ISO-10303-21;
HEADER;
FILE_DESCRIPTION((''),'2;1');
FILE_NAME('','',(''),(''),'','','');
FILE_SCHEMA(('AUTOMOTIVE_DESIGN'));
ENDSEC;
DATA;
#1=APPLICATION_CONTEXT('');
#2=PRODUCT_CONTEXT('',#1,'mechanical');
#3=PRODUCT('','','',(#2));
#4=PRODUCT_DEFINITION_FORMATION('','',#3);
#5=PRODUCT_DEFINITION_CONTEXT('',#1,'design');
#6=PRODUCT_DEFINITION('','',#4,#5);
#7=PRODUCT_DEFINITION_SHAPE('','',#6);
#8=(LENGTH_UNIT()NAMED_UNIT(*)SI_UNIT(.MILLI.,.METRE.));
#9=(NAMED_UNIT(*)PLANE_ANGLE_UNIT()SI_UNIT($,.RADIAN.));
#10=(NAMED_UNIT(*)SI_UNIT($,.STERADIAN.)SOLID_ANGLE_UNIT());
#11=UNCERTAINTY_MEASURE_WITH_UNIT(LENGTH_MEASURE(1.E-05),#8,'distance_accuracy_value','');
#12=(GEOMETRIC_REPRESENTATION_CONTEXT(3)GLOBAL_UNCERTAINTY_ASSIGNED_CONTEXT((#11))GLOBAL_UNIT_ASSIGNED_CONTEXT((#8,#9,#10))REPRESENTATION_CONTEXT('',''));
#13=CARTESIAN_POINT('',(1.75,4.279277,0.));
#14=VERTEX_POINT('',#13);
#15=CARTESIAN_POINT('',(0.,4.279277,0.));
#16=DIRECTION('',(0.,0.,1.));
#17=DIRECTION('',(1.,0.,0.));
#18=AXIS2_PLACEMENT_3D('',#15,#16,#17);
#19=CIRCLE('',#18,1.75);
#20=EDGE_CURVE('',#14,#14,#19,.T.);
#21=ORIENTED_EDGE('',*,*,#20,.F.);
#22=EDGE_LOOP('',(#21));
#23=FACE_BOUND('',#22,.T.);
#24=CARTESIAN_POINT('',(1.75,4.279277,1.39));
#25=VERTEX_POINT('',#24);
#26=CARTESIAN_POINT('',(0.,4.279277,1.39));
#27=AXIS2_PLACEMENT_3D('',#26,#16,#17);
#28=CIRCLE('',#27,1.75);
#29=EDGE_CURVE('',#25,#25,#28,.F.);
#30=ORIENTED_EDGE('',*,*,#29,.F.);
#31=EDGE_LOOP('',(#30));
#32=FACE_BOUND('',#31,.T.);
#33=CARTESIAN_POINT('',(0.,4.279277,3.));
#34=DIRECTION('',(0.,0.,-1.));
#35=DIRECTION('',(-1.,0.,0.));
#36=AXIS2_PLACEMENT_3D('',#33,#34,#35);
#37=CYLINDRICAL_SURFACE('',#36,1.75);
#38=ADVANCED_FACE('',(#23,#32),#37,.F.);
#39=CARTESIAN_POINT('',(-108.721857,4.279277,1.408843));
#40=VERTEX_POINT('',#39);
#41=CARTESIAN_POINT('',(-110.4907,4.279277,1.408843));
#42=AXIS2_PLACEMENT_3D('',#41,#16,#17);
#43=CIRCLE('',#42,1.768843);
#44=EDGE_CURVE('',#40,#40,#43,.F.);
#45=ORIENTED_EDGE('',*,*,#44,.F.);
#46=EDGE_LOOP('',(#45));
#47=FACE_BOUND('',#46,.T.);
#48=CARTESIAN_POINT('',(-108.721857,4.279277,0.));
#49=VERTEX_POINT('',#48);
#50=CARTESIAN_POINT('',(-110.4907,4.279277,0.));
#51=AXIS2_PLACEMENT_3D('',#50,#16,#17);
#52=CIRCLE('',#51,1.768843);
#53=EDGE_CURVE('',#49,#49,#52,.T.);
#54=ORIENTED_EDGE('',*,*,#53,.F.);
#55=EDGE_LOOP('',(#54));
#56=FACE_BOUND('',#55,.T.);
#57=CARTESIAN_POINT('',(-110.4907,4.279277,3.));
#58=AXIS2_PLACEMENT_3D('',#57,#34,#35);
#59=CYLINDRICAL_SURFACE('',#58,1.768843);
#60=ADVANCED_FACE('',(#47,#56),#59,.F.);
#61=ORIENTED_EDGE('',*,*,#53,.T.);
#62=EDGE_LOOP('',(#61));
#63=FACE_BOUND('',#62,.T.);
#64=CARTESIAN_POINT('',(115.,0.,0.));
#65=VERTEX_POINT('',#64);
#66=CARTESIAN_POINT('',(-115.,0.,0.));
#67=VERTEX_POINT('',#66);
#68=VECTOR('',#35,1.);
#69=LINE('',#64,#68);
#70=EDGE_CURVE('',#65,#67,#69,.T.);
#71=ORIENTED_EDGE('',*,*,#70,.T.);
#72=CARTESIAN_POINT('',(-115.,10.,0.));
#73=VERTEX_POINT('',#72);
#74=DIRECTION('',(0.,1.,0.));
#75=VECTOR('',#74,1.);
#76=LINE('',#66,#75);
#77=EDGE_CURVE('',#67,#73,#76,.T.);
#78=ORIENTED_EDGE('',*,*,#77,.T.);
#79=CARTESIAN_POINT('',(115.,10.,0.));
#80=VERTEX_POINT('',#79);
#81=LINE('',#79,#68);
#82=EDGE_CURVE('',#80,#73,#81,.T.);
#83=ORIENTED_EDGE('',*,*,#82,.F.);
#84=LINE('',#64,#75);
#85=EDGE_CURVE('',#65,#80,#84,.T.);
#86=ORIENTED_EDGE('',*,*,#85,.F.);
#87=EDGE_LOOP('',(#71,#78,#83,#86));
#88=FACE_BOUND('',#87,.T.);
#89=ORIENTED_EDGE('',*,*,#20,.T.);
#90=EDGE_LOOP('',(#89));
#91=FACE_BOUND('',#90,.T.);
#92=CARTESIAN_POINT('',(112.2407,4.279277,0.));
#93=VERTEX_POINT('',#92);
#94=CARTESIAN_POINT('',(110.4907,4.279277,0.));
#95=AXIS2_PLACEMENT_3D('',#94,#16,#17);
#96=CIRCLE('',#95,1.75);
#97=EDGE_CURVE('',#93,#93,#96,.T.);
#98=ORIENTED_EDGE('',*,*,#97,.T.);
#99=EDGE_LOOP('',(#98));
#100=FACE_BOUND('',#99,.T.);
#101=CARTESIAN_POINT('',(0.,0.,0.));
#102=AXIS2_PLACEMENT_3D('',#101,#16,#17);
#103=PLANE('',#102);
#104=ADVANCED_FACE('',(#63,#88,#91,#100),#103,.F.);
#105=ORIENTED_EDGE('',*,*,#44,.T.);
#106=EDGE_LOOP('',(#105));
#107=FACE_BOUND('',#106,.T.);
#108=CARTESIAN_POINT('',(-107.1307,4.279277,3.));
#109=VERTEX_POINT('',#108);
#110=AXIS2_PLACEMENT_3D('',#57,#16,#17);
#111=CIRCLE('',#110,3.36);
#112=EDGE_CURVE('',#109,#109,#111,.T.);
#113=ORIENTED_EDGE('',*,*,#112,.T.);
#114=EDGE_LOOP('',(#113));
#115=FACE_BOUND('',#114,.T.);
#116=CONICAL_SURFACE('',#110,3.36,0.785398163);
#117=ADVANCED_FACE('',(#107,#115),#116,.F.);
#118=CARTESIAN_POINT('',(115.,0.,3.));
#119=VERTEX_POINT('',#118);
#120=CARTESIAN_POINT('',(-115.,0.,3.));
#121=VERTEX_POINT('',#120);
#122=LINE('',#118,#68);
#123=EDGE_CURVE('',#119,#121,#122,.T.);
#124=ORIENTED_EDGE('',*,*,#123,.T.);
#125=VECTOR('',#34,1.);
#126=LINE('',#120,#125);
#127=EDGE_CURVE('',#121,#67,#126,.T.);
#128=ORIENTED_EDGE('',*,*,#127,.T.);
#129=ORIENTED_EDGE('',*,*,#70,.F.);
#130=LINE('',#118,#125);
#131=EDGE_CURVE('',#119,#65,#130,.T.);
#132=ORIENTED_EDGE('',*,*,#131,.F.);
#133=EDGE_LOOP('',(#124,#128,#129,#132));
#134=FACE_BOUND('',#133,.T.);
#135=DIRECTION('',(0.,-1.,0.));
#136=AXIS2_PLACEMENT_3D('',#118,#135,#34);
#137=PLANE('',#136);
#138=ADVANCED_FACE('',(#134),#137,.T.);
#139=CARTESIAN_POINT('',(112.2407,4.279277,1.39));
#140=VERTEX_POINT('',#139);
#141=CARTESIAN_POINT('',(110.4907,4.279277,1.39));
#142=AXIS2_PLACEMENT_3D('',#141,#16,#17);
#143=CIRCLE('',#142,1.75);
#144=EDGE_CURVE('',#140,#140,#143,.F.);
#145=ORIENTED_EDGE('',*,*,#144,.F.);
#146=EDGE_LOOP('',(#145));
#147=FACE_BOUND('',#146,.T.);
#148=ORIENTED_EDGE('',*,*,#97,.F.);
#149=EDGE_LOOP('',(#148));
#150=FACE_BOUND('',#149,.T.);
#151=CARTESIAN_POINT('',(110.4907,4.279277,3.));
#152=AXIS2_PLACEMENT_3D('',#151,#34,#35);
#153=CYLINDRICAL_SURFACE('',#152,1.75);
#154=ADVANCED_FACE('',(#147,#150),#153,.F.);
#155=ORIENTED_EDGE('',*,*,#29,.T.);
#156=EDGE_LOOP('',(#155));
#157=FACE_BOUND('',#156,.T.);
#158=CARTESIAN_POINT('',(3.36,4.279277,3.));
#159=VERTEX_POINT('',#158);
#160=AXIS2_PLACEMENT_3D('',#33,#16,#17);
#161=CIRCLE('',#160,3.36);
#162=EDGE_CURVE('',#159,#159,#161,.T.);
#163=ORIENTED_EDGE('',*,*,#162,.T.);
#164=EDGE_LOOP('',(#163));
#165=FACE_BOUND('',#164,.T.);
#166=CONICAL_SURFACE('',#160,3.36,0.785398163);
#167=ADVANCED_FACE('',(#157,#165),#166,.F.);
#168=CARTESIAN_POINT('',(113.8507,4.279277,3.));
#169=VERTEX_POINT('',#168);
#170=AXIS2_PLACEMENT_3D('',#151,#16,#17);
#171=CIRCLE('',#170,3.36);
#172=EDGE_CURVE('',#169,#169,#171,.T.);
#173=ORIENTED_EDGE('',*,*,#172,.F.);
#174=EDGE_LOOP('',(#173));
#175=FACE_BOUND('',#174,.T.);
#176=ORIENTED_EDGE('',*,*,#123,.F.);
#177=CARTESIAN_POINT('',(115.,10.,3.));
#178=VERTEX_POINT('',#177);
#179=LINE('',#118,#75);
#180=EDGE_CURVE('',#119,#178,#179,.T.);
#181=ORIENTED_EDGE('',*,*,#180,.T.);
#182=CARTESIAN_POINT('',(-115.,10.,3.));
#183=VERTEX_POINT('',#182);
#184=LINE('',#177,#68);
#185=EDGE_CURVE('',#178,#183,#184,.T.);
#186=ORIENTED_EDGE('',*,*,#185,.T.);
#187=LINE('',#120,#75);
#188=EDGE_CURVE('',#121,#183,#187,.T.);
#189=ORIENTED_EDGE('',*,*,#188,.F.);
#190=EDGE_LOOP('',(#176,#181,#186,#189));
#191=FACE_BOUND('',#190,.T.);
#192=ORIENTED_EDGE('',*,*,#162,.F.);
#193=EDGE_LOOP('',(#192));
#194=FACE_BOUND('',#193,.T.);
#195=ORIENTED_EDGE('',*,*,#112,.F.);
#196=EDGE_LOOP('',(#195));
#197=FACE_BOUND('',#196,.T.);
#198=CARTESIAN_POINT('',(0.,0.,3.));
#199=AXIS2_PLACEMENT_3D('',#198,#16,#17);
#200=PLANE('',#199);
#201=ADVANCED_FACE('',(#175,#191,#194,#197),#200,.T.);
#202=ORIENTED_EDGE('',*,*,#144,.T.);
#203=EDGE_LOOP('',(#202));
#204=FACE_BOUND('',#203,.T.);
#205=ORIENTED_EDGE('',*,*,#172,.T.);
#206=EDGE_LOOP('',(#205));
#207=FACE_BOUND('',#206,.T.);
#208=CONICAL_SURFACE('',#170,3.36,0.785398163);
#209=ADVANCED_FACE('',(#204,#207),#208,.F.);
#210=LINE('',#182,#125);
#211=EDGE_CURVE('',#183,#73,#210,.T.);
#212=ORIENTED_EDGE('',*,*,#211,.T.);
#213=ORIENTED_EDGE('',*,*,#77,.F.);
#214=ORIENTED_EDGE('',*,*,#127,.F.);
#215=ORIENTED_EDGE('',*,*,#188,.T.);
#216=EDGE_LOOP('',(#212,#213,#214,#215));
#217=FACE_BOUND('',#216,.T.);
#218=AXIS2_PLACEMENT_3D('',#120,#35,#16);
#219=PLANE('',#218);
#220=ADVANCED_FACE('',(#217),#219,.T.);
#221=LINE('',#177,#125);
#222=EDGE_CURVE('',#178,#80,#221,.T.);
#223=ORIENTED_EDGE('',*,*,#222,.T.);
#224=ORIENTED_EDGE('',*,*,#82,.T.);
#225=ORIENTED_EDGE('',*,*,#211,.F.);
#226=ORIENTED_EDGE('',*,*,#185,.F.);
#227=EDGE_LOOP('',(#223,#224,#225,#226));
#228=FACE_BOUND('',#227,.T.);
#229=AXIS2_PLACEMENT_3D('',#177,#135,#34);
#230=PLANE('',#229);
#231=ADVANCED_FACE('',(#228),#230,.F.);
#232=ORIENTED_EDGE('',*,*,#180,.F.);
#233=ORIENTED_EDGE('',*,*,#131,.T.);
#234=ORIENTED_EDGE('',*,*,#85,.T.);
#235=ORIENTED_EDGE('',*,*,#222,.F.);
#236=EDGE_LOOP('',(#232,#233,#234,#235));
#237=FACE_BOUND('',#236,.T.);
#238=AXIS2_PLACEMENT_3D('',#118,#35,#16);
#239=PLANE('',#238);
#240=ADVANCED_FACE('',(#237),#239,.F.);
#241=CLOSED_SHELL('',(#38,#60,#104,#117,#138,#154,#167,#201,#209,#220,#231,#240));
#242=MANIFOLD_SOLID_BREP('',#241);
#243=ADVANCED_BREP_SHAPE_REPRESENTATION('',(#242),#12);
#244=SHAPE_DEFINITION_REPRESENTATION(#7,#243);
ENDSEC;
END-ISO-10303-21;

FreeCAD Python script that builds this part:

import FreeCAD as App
import Part
import Sketcher
from FreeCAD import Vector
Q = App.Units.Quantity

doc = App.newDocument("Part")
params = doc.addObject("Spreadsheet::Sheet", "Params")
for row, (alias, value) in enumerate([
    ("sketch1_diameter", "3.5 mm"),
    ("sketch1_width", "230 mm"),
    ("sketch1_height", "10 mm"),
    ("pad1_length", "3 mm"),
    ("sketch2_height", "3 mm"),
    ("sketch2_width", "1.7 mm"),
    ("sketch2_width2", "3.36 mm"),
    ("groove_angle", "360 deg"),
    ("linearpattern_pitch", "110.4907 mm"),
    ("linearpattern2_pitch", "220.981401 mm"),
], start=1):
    params.set(f"A{row}", alias)
    params.set(f"B{row}", "=" + value)
    params.setAlias(f"B{row}", alias)

body = doc.addObject("PartDesign::Body", "Body")

sketch1 = body.newObject("Sketcher::SketchObject", "Sketch")
sketch1.AttachmentSupport = (doc.getObject("XY_Plane"), [""])
sketch1.MapMode = "FlatFace"
sketch1.addGeometry([
    Part.LineSegment(Vector(-115, 10, 0), Vector(-115, 0, 0)),
    Part.LineSegment(Vector(-115, 0, 0), Vector(115, 0, 0)),
    Part.LineSegment(Vector(115, 0, 0), Vector(115, 10, 0)),
    Part.LineSegment(Vector(115, 10, 0), Vector(-115, 10, 0)),
    Part.Circle(Vector(-110.5, 4.3, 0), Vector(0, 0, 1), 1.8),
    Part.Circle(Vector(0, 4.3, 0), Vector(0, 0, 1), 1.8),
    Part.Circle(Vector(110.5, 4.3, 0), Vector(0, 0, 1), 1.8),
], False)
sketch1.addConstraint([
    Sketcher.Constraint("Coincident", 0, 2, 1, 1),
    Sketcher.Constraint("Coincident", 1, 2, 2, 1),
    Sketcher.Constraint("Coincident", 2, 2, 3, 1),
    Sketcher.Constraint("Coincident", 3, 2, 0, 1),
    Sketcher.Constraint("Vertical", 0),
    Sketcher.Constraint("Horizontal", 1),
    Sketcher.Constraint("Vertical", 2),
    Sketcher.Constraint("Horizontal", 3),
    Sketcher.Constraint("Equal", 5, 6),
    Sketcher.Constraint("Symmetric", 0, 2, 1, 2, -1, 1),
    Sketcher.Constraint("Symmetric", 4, 3, 6, 3, -2),
    Sketcher.Constraint("PointOnObject", 5, 3, -2),
    Sketcher.Constraint("Horizontal", 4, 3, 5, 3),
    Sketcher.Constraint("Diameter", 5, Q("3.5 mm")),
    Sketcher.Constraint("DistanceX", 1, 1, 1, 2, Q("230 mm")),
    Sketcher.Constraint("DistanceY", 0, 2, 0, 1, Q("10 mm")),
    Sketcher.Constraint("Diameter", 4, Q("3.537686 mm")),
    Sketcher.Constraint("DistanceX", 4, 3, -1, 1, Q("110.4907 mm")),
    Sketcher.Constraint("DistanceY", -1, 1, 4, 3, Q("4.279277 mm")),
])
sketch1.setExpression("Constraints[13]", "Params.sketch1_diameter")
sketch1.setExpression("Constraints[14]", "Params.sketch1_width")
sketch1.setExpression("Constraints[15]", "Params.sketch1_height")
pad1 = body.newObject("PartDesign::Pad", "Pad")
pad1.Profile = sketch1
pad1.setExpression("Length", "Params.pad1_length")

sketch2 = body.newObject("Sketcher::SketchObject", "Sketch001")
sketch2.AttachmentSupport = (doc.getObject("YZ_Plane"), [""])
sketch2.MapMode = "FlatFace"
sketch2.AttachmentOffset = App.Placement(Vector(0, 0, -110.4907), App.Rotation())
sketch2.addGeometry([
    Part.LineSegment(Vector(4.3, 0, 0), Vector(4.3, 3, 0)),
    Part.LineSegment(Vector(4.3, 3, 0), Vector(0.9, 3, 0)),
    Part.LineSegment(Vector(0.9, 3, 0), Vector(2.6, 1.3, 0)),
    Part.LineSegment(Vector(2.6, 1.3, 0), Vector(2.6, 0, 0)),
    Part.LineSegment(Vector(2.6, 0, 0), Vector(4.3, 0, 0)),
], False)
sketch2.addGeometry(Part.LineSegment(Vector(4.3, 3, 0), Vector(4.3, 0, 0)), True)
sketch2.addConstraint([
    Sketcher.Constraint("Coincident", 0, 2, 1, 1),
    Sketcher.Constraint("Coincident", 1, 2, 2, 1),
    Sketcher.Constraint("Coincident", 2, 2, 3, 1),
    Sketcher.Constraint("Coincident", 3, 2, 4, 1),
    Sketcher.Constraint("Coincident", 4, 2, 0, 1),
    Sketcher.Constraint("Vertical", 0),
    Sketcher.Constraint("Horizontal", 1),
    Sketcher.Constraint("Vertical", 3),
    Sketcher.Constraint("Horizontal", 4),
    Sketcher.Constraint("Vertical", 5),
    Sketcher.Constraint("Coincident", 5, 1, 0, 2),
    Sketcher.Constraint("PointOnObject", 3, 2, -1),
    Sketcher.Constraint("PointOnObject", 5, 2, -1),
    Sketcher.Constraint("DistanceY", 0, 1, 0, 2, Q("3 mm")),
    Sketcher.Constraint("Angle", 2, Q("-45 deg")),
    Sketcher.Constraint("DistanceX", 4, 1, 4, 2, Q("1.7 mm")),
    Sketcher.Constraint("DistanceX", 1, 2, 1, 1, Q("3.36 mm")),
    Sketcher.Constraint("DistanceX", -1, 1, 0, 2, Q("4.279277 mm")),
])
sketch2.setExpression("Constraints[13]", "Params.sketch2_height")
sketch2.setExpression("Constraints[15]", "Params.sketch2_width")
sketch2.setExpression("Constraints[16]", "Params.sketch2_width2")
groove = body.newObject("PartDesign::Groove", "Groove")
groove.Profile = sketch2
groove.ReferenceAxis = (sketch2, ["Axis0"])
groove.setExpression("Angle", "Params.groove_angle")
doc.recompute()

linearpattern = body.newObject("PartDesign::LinearPattern", "LinearPattern")
linearpattern.Originals = [groove]
linearpattern.Direction = (doc.getObject("X_Axis"), [""])
linearpattern.Mode = "offset"
linearpattern.setExpression("Offset", "Params.linearpattern_pitch")
linearpattern.Occurrences = 2
body.Tip = linearpattern
doc.recompute()

linearpattern2 = body.newObject("PartDesign::LinearPattern", "LinearPattern001")
linearpattern2.Originals = [groove]
linearpattern2.Direction = (doc.getObject("X_Axis"), [""])
linearpattern2.Mode = "offset"
linearpattern2.setExpression("Offset", "Params.linearpattern2_pitch")
linearpattern2.Occurrences = 2
body.Tip = linearpattern2

doc.recompute()
